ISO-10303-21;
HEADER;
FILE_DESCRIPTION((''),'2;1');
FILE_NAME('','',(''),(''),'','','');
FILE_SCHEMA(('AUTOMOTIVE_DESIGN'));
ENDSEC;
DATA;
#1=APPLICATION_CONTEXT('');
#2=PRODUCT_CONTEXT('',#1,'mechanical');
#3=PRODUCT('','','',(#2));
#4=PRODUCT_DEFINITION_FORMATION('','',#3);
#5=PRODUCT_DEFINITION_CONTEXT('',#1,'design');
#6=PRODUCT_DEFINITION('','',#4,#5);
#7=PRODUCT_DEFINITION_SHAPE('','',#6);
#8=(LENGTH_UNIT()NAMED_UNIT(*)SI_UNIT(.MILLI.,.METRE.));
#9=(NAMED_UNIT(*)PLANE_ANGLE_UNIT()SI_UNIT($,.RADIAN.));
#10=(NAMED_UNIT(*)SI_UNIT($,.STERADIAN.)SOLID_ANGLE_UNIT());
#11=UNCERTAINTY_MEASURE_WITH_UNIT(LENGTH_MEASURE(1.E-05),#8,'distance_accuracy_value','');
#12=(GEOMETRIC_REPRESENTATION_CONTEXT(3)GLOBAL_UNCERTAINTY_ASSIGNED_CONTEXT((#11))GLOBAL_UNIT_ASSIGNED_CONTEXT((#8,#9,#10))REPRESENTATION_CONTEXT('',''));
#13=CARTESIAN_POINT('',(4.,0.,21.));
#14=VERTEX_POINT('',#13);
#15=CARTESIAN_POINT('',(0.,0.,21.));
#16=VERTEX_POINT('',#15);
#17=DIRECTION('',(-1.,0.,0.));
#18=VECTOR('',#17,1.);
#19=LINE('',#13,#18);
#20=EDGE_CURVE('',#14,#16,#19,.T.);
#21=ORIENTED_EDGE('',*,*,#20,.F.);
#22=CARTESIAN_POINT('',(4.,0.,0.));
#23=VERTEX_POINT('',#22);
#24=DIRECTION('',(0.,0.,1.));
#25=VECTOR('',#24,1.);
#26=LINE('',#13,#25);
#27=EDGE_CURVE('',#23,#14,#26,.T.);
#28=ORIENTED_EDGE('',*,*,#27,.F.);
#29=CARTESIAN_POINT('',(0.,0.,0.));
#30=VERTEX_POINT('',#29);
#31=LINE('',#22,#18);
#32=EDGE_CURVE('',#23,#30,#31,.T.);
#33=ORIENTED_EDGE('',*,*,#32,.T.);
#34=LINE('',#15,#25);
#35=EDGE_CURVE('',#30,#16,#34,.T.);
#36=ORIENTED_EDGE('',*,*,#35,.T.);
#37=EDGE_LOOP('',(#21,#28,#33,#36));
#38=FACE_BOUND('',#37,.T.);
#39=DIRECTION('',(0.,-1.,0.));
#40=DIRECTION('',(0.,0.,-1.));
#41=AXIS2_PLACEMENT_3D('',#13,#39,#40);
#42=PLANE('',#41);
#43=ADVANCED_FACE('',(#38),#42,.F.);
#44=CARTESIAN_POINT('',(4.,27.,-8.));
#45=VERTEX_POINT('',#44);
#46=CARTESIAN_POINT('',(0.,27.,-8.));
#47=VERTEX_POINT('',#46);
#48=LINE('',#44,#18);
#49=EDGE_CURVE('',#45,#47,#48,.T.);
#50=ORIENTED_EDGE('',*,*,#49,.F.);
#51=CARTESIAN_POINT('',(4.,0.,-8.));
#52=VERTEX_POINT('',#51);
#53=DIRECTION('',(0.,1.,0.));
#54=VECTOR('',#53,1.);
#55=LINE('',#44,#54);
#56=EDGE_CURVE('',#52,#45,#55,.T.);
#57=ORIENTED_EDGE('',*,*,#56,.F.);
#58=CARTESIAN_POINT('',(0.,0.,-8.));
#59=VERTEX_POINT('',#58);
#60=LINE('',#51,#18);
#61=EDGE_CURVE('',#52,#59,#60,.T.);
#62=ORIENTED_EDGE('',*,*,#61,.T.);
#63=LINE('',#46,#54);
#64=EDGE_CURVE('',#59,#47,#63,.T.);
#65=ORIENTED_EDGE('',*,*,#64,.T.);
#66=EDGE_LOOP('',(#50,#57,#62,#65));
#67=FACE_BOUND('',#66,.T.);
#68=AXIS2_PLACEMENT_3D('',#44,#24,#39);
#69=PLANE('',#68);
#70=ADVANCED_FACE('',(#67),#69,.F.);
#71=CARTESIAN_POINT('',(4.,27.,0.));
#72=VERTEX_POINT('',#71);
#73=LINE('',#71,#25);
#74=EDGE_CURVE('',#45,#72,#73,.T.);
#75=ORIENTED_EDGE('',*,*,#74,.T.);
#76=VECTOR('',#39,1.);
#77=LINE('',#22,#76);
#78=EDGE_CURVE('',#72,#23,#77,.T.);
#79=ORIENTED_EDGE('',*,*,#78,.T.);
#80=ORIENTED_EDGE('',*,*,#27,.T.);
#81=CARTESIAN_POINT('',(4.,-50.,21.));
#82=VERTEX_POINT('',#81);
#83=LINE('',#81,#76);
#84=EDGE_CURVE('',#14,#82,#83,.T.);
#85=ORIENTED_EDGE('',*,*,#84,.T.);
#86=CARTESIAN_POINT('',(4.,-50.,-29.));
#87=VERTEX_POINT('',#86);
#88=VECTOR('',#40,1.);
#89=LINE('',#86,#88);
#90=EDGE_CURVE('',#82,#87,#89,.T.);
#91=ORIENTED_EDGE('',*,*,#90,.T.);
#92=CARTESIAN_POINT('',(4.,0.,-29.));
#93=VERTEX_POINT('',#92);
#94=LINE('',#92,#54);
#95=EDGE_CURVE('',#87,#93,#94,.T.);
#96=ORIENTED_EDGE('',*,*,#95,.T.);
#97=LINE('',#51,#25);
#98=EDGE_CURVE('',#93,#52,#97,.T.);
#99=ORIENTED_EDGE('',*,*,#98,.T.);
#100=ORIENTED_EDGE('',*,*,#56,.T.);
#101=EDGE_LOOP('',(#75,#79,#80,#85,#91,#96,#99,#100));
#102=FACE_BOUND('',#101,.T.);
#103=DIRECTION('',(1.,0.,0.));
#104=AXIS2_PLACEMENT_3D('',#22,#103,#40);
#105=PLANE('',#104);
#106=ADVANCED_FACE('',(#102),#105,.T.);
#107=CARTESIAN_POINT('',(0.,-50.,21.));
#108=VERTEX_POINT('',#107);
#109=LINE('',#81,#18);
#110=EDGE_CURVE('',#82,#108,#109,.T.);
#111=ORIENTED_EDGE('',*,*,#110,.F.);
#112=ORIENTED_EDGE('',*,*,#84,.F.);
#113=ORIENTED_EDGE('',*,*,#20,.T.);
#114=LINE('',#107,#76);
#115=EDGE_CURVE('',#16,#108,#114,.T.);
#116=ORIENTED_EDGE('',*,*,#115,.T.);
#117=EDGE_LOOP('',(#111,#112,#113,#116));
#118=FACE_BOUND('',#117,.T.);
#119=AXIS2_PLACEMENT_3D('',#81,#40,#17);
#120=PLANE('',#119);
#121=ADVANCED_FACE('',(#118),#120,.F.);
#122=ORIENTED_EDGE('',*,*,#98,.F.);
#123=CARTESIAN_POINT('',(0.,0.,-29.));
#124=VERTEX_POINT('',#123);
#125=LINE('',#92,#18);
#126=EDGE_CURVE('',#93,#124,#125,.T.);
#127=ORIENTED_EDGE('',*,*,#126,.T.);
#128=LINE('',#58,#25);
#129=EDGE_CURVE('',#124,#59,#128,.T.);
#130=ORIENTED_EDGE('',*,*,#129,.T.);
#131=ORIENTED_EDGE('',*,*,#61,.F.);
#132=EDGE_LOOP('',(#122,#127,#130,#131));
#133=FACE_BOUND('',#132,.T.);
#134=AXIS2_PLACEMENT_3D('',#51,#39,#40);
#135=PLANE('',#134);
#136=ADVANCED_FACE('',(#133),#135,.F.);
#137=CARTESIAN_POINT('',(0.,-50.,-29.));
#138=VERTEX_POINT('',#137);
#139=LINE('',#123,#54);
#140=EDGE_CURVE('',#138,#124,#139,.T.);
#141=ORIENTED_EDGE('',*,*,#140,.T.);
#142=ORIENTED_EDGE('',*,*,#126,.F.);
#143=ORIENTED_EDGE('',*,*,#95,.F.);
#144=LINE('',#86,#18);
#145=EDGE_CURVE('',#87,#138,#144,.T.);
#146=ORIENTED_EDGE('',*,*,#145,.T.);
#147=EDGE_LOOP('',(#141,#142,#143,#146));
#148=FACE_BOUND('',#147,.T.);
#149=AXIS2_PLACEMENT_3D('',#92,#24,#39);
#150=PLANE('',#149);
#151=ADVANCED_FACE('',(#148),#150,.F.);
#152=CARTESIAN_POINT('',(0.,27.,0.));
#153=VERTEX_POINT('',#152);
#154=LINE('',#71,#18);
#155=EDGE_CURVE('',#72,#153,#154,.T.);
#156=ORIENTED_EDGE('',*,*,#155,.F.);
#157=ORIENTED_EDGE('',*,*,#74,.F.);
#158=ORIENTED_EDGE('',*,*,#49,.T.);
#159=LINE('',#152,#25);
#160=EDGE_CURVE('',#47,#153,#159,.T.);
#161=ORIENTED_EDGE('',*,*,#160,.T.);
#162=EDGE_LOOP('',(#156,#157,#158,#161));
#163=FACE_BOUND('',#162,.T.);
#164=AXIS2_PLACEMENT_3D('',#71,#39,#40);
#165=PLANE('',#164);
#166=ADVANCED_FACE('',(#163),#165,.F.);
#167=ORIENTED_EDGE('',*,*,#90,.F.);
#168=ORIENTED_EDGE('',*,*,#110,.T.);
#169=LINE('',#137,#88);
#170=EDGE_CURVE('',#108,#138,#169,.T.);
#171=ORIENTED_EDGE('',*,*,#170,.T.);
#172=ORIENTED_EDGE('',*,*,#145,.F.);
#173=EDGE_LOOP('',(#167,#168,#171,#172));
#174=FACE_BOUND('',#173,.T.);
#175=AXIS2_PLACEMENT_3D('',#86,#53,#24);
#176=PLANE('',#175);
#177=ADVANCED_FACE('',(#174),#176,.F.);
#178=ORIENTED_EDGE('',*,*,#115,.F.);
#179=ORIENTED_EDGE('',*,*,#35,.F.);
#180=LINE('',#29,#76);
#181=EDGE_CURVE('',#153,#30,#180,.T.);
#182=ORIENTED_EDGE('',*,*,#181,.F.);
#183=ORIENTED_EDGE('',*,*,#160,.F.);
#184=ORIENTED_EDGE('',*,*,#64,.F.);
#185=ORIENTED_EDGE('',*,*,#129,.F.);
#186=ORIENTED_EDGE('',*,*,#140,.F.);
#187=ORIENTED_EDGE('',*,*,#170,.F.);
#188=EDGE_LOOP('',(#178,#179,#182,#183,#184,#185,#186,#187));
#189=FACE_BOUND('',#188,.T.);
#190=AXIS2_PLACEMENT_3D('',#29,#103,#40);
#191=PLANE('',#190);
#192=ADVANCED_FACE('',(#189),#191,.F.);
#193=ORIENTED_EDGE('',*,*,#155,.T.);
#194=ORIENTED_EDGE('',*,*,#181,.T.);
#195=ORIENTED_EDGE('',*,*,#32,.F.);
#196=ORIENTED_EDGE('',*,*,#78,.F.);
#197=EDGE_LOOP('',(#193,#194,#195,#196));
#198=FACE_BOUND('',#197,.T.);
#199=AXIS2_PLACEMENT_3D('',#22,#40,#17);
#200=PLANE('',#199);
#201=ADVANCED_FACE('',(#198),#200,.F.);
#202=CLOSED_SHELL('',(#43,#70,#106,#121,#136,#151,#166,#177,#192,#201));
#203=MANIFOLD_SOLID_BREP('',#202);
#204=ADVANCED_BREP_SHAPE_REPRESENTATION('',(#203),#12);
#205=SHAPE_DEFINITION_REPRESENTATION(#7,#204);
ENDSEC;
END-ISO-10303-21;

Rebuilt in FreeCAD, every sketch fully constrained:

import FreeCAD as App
import Part
import Sketcher

V = App.Vector

doc = App.newDocument("Part")
params = doc.addObject("Spreadsheet::Sheet", "Params")
for row, (alias, value) in enumerate([
    ("sketch1_width", "27 mm"),
    ("sketch1_width2", "50 mm"),
    ("sketch1_height", "21 mm"),
    ("pad1_length", "4 mm"),
], start=1):
    params.set(f"A{row}", alias)
    params.set(f"B{row}", "=" + value)
    params.setAlias(f"B{row}", alias)

body = doc.addObject("PartDesign::Body", "Body")

# Sketch on YZ plane
sketch1 = body.newObject("Sketcher::SketchObject", "Sketch")
sketch1.AttachmentSupport = (doc.getObject("YZ_Plane"), [""])
sketch1.MapMode = "FlatFace"
sketch1.addGeometry(Part.LineSegment(V(27, 0, 0), V(0, 0, 0)), False)
sketch1.addGeometry(Part.LineSegment(V(0, 0, 0), V(0, 21, 0)), False)
sketch1.addGeometry(Part.LineSegment(V(0, 21, 0), V(-50, 21, 0)), False)
sketch1.addGeometry(Part.LineSegment(V(-50, 21, 0), V(-50, -29, 0)), False)
sketch1.addGeometry(Part.LineSegment(V(-50, -29, 0), V(0, -29, 0)), False)
sketch1.addGeometry(Part.LineSegment(V(0, -29, 0), V(0, -8, 0)), False)
sketch1.addGeometry(Part.LineSegment(V(0, -8, 0), V(27, -8, 0)), False)
sketch1.addGeometry(Part.LineSegment(V(27, -8, 0), V(27, 0, 0)), False)
sketch1.addConstraint(Sketcher.Constraint("Coincident", 0, 2, 1, 1))
sketch1.addConstraint(Sketcher.Constraint("Coincident", 1, 2, 2, 1))
sketch1.addConstraint(Sketcher.Constraint("Coincident", 2, 2, 3, 1))
sketch1.addConstraint(Sketcher.Constraint("Coincident", 3, 2, 4, 1))
sketch1.addConstraint(Sketcher.Constraint("Coincident", 4, 2, 5, 1))
sketch1.addConstraint(Sketcher.Constraint("Coincident", 5, 2, 6, 1))
sketch1.addConstraint(Sketcher.Constraint("Coincident", 6, 2, 7, 1))
sketch1.addConstraint(Sketcher.Constraint("Coincident", 7, 2, 0, 1))
sketch1.addConstraint(Sketcher.Constraint("Horizontal", 0))
sketch1.addConstraint(Sketcher.Constraint("Vertical", 1))
sketch1.addConstraint(Sketcher.Constraint("Horizontal", 2))
sketch1.addConstraint(Sketcher.Constraint("Vertical", 3))
sketch1.addConstraint(Sketcher.Constraint("Horizontal", 4))
sketch1.addConstraint(Sketcher.Constraint("Vertical", 5))
sketch1.addConstraint(Sketcher.Constraint("Horizontal", 6))
sketch1.addConstraint(Sketcher.Constraint("Vertical", 7))
sketch1.addConstraint(Sketcher.Constraint("Coincident", 0, 2, -1, 1))
sketch1.addConstraint(Sketcher.Constraint("PointOnObject", 4, 2, -2))
sketch1.addConstraint(Sketcher.Constraint("Equal", 4, 3))
sketch1.addConstraint(Sketcher.Constraint("Equal", 1, 5))
sketch1.addConstraint(Sketcher.Constraint("DistanceX", 0, 2, 0, 1, 27.0))
sketch1.addConstraint(Sketcher.Constraint("DistanceX", 2, 2, 2, 1, 50.0))
sketch1.addConstraint(Sketcher.Constraint("DistanceY", 1, 1, 1, 2, 21.0))
sketch1.setExpression("Constraints[20]", "Params.sketch1_width")
sketch1.setExpression("Constraints[21]", "Params.sketch1_width2")
sketch1.setExpression("Constraints[22]", "Params.sketch1_height")
pad1 = body.newObject("PartDesign::Pad", "Pad")
pad1.Profile = sketch1
pad1.setExpression("Length", "Params.pad1_length")

doc.recompute()
